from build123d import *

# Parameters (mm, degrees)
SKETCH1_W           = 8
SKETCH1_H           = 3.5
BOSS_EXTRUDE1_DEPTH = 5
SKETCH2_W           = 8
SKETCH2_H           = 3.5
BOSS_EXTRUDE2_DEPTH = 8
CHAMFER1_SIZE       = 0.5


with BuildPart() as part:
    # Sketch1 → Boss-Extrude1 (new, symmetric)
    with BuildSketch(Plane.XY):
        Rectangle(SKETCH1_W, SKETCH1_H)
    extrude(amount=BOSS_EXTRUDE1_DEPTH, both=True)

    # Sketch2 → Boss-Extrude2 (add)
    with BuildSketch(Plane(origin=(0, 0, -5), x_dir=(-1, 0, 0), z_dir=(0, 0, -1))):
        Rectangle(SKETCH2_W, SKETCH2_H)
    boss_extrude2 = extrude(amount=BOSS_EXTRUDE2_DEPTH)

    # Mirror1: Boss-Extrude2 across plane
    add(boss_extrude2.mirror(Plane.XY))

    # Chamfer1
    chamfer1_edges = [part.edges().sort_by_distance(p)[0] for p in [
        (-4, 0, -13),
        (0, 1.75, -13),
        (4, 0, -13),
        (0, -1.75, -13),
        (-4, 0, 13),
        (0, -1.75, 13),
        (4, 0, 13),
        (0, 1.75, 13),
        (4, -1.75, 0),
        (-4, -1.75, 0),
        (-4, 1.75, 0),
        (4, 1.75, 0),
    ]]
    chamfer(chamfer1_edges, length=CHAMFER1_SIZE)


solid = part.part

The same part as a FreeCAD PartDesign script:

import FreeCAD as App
import Part
import Sketcher
from FreeCAD import Vector
Q = App.Units.Quantity


def add_polygon(sketch, points):
    """Adds a closed chain of lines whose ends are joined by coincident constraints."""
    first, n = sketch.GeometryCount, len(points)
    for a, b in zip(points, points[1:] + points[:1]):
        sketch.addGeometry(Part.LineSegment(App.Vector(*a, 0), App.Vector(*b, 0)), False)
    for i in range(n):
        sketch.addConstraint(Sketcher.Constraint("Coincident", first + i, 2, first + (i + 1) % n, 1))

doc = App.newDocument("Part")
body = doc.addObject("PartDesign::Body", "Body")

# Sketch on XY plane
sketch1 = body.newObject("Sketcher::SketchObject", "Sketch")
sketch1.AttachmentSupport = (doc.getObject("XY_Plane"), [""])
sketch1.MapMode = "FlatFace"
add_polygon(sketch1, [(-4, 1.8), (-4, -1.8), (4, -1.8), (4, 1.8)])  # lines 0-3
sketch1.addConstraint([
    Sketcher.Constraint("Vertical", 0),
    Sketcher.Constraint("Horizontal", 1),
    Sketcher.Constraint("Vertical", 2),
    Sketcher.Constraint("Horizontal", 3),
    Sketcher.Constraint("Symmetric", 0, 2, 2, 2, -1, 1),
    Sketcher.Constraint("DistanceX", 1, 1, 1, 2, Q("8 mm")),
    Sketcher.Constraint("DistanceY", 0, 2, 0, 1, Q("3.5 mm")),
])
pad1 = body.newObject("PartDesign::Pad", "Pad")
pad1.Profile = sketch1
pad1.Length = 10
pad1.Midplane = True

# Sketch on XY plane
sketch2 = body.newObject("Sketcher::SketchObject", "Sketch001")
sketch2.AttachmentSupport = (doc.getObject("XY_Plane"), [""])
sketch2.MapMode = "FlatFace"
sketch2.AttachmentOffset = App.Placement(Vector(0, 0, -5), App.Rotation())
add_polygon(sketch2, [(4, 1.8), (4, -1.8), (-4, -1.8), (-4, 1.8)])  # lines 0-3
sketch2.addConstraint([
    Sketcher.Constraint("Vertical", 0),
    Sketcher.Constraint("Horizontal", 1),
    Sketcher.Constraint("Vertical", 2),
    Sketcher.Constraint("Horizontal", 3),
    Sketcher.Constraint("Symmetric", 0, 2, 2, 2, -1, 1),
    Sketcher.Constraint("DistanceX", 1, 2, 1, 1, Q("8 mm")),
    Sketcher.Constraint("DistanceY", 0, 2, 0, 1, Q("3.5 mm")),
])
pad2 = body.newObject("PartDesign::Pad", "Pad001")
pad2.Profile = sketch2
pad2.Length = 8
pad2.Reversed = True
doc.recompute()

mirrored = body.newObject("PartDesign::Mirrored", "Mirrored")
mirrored.Originals = [pad2]
mirrored.MirrorPlane = (doc.getObject("XY_Plane"), [""])
body.Tip = mirrored
doc.recompute()

chamfer = body.newObject("PartDesign::Chamfer", "Chamfer")
chamfer.Base = (mirrored, ["Edge1"])
chamfer.UseAllEdges = True
chamfer.Size = 0.5

doc.recompute()
